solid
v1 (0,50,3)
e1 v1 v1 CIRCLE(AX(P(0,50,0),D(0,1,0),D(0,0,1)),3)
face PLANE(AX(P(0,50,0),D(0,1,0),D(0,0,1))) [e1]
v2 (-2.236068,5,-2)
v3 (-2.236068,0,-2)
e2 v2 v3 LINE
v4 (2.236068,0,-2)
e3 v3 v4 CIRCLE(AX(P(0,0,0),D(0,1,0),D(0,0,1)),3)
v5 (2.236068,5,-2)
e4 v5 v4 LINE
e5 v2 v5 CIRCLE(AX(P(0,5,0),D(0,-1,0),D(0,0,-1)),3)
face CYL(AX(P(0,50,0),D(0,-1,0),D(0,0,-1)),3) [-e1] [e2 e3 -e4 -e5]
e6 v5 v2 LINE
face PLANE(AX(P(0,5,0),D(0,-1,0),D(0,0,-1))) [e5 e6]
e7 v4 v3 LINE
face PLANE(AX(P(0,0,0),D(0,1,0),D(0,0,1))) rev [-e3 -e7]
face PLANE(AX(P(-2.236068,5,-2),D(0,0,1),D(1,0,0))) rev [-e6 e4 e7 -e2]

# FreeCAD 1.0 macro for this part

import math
import FreeCAD as App
import Part
import Sketcher

V = App.Vector
Q = App.Units.Quantity

doc = App.newDocument("Part")
body = doc.addObject("PartDesign::Body", "Body")

sketch1 = body.newObject("Sketcher::SketchObject", "Sketch")
sketch1.AttachmentSupport = (doc.getObject("XZ_Plane"), [""])
sketch1.MapMode = "FlatFace"
sketch1.addGeometry(Part.Circle(V(0, 0, 0), V(0, 0, 1), 3), False)
sketch1.addConstraint([
    Sketcher.Constraint("Coincident", 0, 3, -1, 1),
    Sketcher.Constraint("Diameter", 0, Q("6 mm")),
])
pad1 = body.newObject("PartDesign::Pad", "Pad")
pad1.Profile = sketch1
pad1.Length = 50
pad1.Reversed = True

sketch2 = body.newObject("Sketcher::SketchObject", "Sketch001")
sketch2.AttachmentSupport = (doc.getObject("XZ_Plane"), [""])
sketch2.MapMode = "FlatFace"
sketch2.addGeometry([
    Part.LineSegment(V(2.2, -2, 0), V(-2.2, -2, 0)),
    Part.ArcOfCircle(Part.Circle(V(0, 0, 0), V(0, 0, 1), 3), math.radians(-138), math.radians(-42)),
], False)
sketch2.addConstraint([
    Sketcher.Constraint("Coincident", 0, 1, 1, 2),
    Sketcher.Constraint("Coincident", 1, 1, 0, 2),
    Sketcher.Constraint("Horizontal", 0),
    Sketcher.Constraint("Coincident", 1, 3, -1, 1),
    Sketcher.Constraint("Radius", 1, Q("3 mm")),
    Sketcher.Constraint("DistanceY", 0, 1, -1, 1, Q("2 mm")),
])
pocket1 = body.newObject("PartDesign::Pocket", "Pocket")
pocket1.Profile = sketch2
pocket1.Length = 5

doc.recompute()
